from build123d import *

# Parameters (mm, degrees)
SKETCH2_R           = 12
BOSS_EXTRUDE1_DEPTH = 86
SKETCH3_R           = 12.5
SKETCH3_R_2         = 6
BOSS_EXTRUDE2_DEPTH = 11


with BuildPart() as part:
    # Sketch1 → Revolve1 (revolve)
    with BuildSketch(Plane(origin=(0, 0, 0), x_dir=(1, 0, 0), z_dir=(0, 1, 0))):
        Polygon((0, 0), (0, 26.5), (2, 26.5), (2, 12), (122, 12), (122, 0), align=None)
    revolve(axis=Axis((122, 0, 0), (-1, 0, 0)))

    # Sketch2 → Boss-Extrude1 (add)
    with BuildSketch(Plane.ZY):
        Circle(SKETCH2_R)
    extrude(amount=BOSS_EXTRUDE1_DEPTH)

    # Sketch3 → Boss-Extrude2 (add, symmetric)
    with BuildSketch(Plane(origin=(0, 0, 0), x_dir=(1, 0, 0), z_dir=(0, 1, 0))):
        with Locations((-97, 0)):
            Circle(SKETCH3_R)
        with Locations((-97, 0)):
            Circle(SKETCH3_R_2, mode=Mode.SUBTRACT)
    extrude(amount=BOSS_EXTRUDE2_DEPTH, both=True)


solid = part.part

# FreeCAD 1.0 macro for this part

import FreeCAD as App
import Part
import Sketcher

doc = App.newDocument("Part")
body = doc.addObject("PartDesign::Body", "Body")

sketch1 = body.newObject("Sketcher::SketchObject", "Sketch")
sketch1.AttachmentSupport = (doc.getObject("XZ_Plane"), [""])
sketch1.MapMode = "FlatFace"
sketch1.addGeometry(Part.LineSegment(App.Vector(0, -26.5, 0), App.Vector(0, 0, 0)), False)
sketch1.addGeometry(Part.LineSegment(App.Vector(0, 0, 0), App.Vector(122, 0, 0)), False)
sketch1.addGeometry(Part.LineSegment(App.Vector(122, 0, 0), App.Vector(122, -12, 0)), False)
sketch1.addGeometry(Part.LineSegment(App.Vector(122, -12, 0), App.Vector(2, -12, 0)), False)
sketch1.addGeometry(Part.LineSegment(App.Vector(2, -12, 0), App.Vector(2, -26.5, 0)), False)
sketch1.addGeometry(Part.LineSegment(App.Vector(2, -26.5, 0), App.Vector(0, -26.5, 0)), False)
sketch1.addConstraint(Sketcher.Constraint("Coincident", 0, 2, 1, 1))
sketch1.addConstraint(Sketcher.Constraint("Coincident", 1, 2, 2, 1))
sketch1.addConstraint(Sketcher.Constraint("Coincident", 2, 2, 3, 1))
sketch1.addConstraint(Sketcher.Constraint("Coincident", 3, 2, 4, 1))
sketch1.addConstraint(Sketcher.Constraint("Coincident", 4, 2, 5, 1))
sketch1.addConstraint(Sketcher.Constraint("Coincident", 5, 2, 0, 1))
sketch1.addConstraint(Sketcher.Constraint("Vertical", 0))
sketch1.addConstraint(Sketcher.Constraint("Horizontal", 1))
sketch1.addConstraint(Sketcher.Constraint("Vertical", 2))
sketch1.addConstraint(Sketcher.Constraint("Horizontal", 3))
sketch1.addConstraint(Sketcher.Constraint("Vertical", 4))
sketch1.addConstraint(Sketcher.Constraint("Horizontal", 5))
sketch1.addConstraint(Sketcher.Constraint("Coincident", 0, 2, -1, 1))
sketch1.addConstraint(Sketcher.Constraint("DistanceX", 1, 1, 1, 2, 122.0))
sketch1.addConstraint(Sketcher.Constraint("DistanceX", 3, 2, 3, 1, 120.0))
sketch1.addConstraint(Sketcher.Constraint("DistanceY", 2, 2, 2, 1, 12.0))
sketch1.addConstraint(Sketcher.Constraint("DistanceY", 0, 1, 0, 2, 26.5))
revolution = body.newObject("PartDesign::Revolution", "Revolution")
revolution.Profile = sketch1
revolution.ReferenceAxis = (sketch1, ["H_Axis"])
revolution.Angle = 360

sketch2 = body.newObject("Sketcher::SketchObject", "Sketch001")
sketch2.AttachmentSupport = (doc.getObject("YZ_Plane"), [""])
sketch2.MapMode = "FlatFace"
sketch2.addGeometry(Part.Circle(App.Vector(0, 0, 0), App.Vector(0, 0, 1), 12), False)
sketch2.addConstraint(Sketcher.Constraint("Coincident", 0, 3, -1, 1))
sketch2.addConstraint(Sketcher.Constraint("Diameter", 0, 24.0))
pad1 = body.newObject("PartDesign::Pad", "Pad")
pad1.Profile = sketch2
pad1.Length = 86
pad1.Reversed = True

sketch3 = body.newObject("Sketcher::SketchObject", "Sketch002")
sketch3.AttachmentSupport = (doc.getObject("XZ_Plane"), [""])
sketch3.MapMode = "FlatFace"
sketch3.addGeometry(Part.Circle(App.Vector(-97, 0, 0), App.Vector(0, 0, 1), 12), False)
sketch3.addGeometry(Part.Circle(App.Vector(-97, 0, 0), App.Vector(0, 0, 1), 6), False)
sketch3.addConstraint(Sketcher.Constraint("Coincident", 1, 3, 0, 3))
sketch3.addConstraint(Sketcher.Constraint("PointOnObject", 0, 3, -1))
sketch3.addConstraint(Sketcher.Constraint("Diameter", 0, 25.0))
sketch3.addConstraint(Sketcher.Constraint("Diameter", 1, 12.0))
sketch3.addConstraint(Sketcher.Constraint("DistanceX", 0, 3, -1, 1, 97.0))
pad2 = body.newObject("PartDesign::Pad", "Pad001")
pad2.Profile = sketch3
pad2.Length = 22
pad2.Midplane = True

doc.recompute()
